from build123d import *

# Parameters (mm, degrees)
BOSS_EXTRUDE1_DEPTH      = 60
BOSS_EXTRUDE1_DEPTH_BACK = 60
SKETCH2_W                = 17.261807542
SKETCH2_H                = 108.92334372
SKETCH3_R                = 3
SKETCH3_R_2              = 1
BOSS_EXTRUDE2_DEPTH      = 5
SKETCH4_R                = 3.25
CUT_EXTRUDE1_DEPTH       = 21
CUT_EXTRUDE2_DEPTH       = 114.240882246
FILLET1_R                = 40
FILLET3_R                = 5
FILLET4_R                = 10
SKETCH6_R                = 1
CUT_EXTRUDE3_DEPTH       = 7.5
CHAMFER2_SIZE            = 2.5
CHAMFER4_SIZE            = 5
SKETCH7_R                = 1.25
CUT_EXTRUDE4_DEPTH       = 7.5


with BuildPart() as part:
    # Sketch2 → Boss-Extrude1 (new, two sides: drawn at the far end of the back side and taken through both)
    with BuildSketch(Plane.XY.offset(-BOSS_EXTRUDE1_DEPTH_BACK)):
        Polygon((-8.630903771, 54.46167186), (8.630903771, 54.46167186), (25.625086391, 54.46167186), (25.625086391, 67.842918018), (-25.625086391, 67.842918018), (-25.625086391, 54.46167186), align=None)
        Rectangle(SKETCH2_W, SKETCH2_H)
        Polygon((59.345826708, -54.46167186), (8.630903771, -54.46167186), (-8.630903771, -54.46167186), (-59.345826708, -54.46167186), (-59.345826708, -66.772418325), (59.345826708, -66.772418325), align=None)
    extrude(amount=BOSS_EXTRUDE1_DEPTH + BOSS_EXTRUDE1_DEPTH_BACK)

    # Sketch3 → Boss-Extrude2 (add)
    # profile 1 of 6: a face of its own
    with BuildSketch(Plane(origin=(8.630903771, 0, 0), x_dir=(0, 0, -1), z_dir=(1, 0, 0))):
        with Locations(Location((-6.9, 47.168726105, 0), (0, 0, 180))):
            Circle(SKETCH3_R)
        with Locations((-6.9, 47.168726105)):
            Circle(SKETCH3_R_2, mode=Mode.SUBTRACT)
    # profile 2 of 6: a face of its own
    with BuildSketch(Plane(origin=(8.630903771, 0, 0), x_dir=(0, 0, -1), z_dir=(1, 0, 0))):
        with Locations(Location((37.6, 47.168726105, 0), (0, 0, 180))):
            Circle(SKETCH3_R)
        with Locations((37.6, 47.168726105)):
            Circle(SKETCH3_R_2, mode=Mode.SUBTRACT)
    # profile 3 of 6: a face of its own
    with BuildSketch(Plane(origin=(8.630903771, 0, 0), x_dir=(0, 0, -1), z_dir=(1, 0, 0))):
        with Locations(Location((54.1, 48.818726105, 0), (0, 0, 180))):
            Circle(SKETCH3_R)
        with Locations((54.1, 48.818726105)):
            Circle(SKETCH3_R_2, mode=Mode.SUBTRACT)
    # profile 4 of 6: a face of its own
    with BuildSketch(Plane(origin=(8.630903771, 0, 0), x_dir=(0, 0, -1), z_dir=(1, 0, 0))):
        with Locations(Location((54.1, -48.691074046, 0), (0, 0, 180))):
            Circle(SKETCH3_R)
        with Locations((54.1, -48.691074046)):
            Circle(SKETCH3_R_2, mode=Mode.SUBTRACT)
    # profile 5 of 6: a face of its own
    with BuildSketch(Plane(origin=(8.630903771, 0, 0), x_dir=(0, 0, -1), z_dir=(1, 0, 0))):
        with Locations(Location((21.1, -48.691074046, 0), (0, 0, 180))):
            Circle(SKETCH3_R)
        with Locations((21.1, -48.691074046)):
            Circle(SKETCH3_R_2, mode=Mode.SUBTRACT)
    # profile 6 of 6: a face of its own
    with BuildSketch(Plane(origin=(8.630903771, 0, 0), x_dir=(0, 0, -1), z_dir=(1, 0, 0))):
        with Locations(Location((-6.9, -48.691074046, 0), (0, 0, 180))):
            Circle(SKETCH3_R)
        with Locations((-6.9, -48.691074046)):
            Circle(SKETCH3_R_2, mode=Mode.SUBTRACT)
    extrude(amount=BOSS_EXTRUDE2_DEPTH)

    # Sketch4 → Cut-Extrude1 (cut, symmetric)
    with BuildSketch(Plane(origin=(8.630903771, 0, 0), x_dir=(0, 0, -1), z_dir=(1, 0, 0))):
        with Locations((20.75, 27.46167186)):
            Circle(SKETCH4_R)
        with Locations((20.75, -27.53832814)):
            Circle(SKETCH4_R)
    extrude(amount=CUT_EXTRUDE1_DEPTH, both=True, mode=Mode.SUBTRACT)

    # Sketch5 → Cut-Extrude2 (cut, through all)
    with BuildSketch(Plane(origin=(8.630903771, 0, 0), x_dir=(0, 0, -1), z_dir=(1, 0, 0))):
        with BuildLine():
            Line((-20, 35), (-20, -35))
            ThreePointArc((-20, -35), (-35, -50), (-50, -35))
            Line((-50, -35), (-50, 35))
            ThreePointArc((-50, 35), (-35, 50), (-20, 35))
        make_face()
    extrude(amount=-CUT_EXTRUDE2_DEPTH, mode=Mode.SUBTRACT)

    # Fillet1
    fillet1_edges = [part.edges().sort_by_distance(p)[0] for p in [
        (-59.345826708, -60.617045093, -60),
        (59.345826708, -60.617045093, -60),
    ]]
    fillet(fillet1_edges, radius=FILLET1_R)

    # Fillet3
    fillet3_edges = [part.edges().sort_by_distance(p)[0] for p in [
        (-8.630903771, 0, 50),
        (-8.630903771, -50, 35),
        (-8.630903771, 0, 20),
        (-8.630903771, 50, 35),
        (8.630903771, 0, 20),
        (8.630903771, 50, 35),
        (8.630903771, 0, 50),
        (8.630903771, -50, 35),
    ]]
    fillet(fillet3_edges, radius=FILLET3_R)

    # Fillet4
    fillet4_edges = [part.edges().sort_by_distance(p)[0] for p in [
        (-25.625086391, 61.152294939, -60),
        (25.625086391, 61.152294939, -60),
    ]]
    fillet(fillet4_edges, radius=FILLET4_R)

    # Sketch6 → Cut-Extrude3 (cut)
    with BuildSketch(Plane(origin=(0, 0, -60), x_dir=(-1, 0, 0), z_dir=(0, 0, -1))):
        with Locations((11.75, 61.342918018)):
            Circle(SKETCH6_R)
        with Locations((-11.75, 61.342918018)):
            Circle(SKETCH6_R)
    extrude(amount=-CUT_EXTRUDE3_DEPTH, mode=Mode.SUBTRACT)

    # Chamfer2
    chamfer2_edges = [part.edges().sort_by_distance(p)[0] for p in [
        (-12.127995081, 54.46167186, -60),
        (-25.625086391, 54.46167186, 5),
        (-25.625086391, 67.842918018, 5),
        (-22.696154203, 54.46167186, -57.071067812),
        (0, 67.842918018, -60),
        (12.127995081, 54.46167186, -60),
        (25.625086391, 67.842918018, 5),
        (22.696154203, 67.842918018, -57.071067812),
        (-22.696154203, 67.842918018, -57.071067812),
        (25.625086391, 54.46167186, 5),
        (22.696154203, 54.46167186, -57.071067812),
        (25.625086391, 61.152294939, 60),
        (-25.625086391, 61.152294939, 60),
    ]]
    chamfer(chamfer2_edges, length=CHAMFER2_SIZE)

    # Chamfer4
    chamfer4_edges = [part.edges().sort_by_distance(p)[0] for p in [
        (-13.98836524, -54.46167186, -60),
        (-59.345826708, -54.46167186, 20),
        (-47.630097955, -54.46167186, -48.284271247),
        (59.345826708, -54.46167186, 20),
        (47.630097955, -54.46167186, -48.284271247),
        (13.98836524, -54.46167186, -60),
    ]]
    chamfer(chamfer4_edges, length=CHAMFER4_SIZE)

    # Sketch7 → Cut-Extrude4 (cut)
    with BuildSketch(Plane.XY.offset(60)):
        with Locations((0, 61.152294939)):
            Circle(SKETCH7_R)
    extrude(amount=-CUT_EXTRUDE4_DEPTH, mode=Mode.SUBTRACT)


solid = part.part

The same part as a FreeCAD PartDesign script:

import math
import FreeCAD as App
import Part
import Sketcher
from FreeCAD import Vector
Q = App.Units.Quantity


def edges_at(feature, points):
    """Names of the edges that pass closest to the given points."""
    edges = feature.Shape.Edges
    near = lambda p: min(range(len(edges)), key=lambda i: edges[i].distToShape(Part.Vertex(*p))[0])
    return sorted({f"Edge{near(p) + 1}" for p in points})

doc = App.newDocument("Part")
body = doc.addObject("PartDesign::Body", "Body")

# Sketch on XY plane
sketch1 = doc.addObject("Sketcher::SketchObject", "Sketch")
body.addObject(sketch1)
sketch1.AttachmentSupport = (doc.XY_Plane, [""])
sketch1.MapMode = "FlatFace"
sketch1.addGeometry(Part.LineSegment(Vector(26, 54, 0), Vector(26, 68, 0)), False)
sketch1.addGeometry(Part.LineSegment(Vector(26, 68, 0), Vector(-26, 68, 0)), False)
sketch1.addGeometry(Part.LineSegment(Vector(-26, 68, 0), Vector(-26, 54, 0)), False)
sketch1.addGeometry(Part.LineSegment(Vector(-26, 54, 0), Vector(-9, 54, 0)), False)
sketch1.addGeometry(Part.LineSegment(Vector(-9, 54, 0), Vector(-9, -54, 0)), False)
sketch1.addGeometry(Part.LineSegment(Vector(-9, -54, 0), Vector(-59, -54, 0)), False)
sketch1.addGeometry(Part.LineSegment(Vector(-59, -54, 0), Vector(-59, -67, 0)), False)
sketch1.addGeometry(Part.LineSegment(Vector(-59, -67, 0), Vector(59, -67, 0)), False)
sketch1.addGeometry(Part.LineSegment(Vector(59, -67, 0), Vector(59, -54, 0)), False)
sketch1.addGeometry(Part.LineSegment(Vector(59, -54, 0), Vector(9, -54, 0)), False)
sketch1.addGeometry(Part.LineSegment(Vector(9, -54, 0), Vector(9, 54, 0)), False)
sketch1.addGeometry(Part.LineSegment(Vector(9, 54, 0), Vector(26, 54, 0)), False)
sketch1.addConstraint(Sketcher.Constraint("Coincident", 0, 2, 1, 1))
sketch1.addConstraint(Sketcher.Constraint("Coincident", 1, 2, 2, 1))
sketch1.addConstraint(Sketcher.Constraint("Coincident", 2, 2, 3, 1))
sketch1.addConstraint(Sketcher.Constraint("Coincident", 3, 2, 4, 1))
sketch1.addConstraint(Sketcher.Constraint("Coincident", 4, 2, 5, 1))
sketch1.addConstraint(Sketcher.Constraint("Coincident", 5, 2, 6, 1))
sketch1.addConstraint(Sketcher.Constraint("Coincident", 6, 2, 7, 1))
sketch1.addConstraint(Sketcher.Constraint("Coincident", 7, 2, 8, 1))
sketch1.addConstraint(Sketcher.Constraint("Coincident", 8, 2, 9, 1))
sketch1.addConstraint(Sketcher.Constraint("Coincident", 9, 2, 10, 1))
sketch1.addConstraint(Sketcher.Constraint("Coincident", 10, 2, 11, 1))
sketch1.addConstraint(Sketcher.Constraint("Coincident", 11, 2, 0, 1))
sketch1.addConstraint(Sketcher.Constraint("Vertical", 0))
sketch1.addConstraint(Sketcher.Constraint("Horizontal", 1))
sketch1.addConstraint(Sketcher.Constraint("Vertical", 2))
sketch1.addConstraint(Sketcher.Constraint("Horizontal", 3))
sketch1.addConstraint(Sketcher.Constraint("Vertical", 4))
sketch1.addConstraint(Sketcher.Constraint("Horizontal", 5))
sketch1.addConstraint(Sketcher.Constraint("Vertical", 6))
sketch1.addConstraint(Sketcher.Constraint("Horizontal", 7))
sketch1.addConstraint(Sketcher.Constraint("Vertical", 8))
sketch1.addConstraint(Sketcher.Constraint("Horizontal", 9))
sketch1.addConstraint(Sketcher.Constraint("Vertical", 10))
sketch1.addConstraint(Sketcher.Constraint("Horizontal", 11))
sketch1.addConstraint(Sketcher.Constraint("Symmetric", 3, 2, 9, 2, -1, 1))
sketch1.addConstraint(Sketcher.Constraint("Symmetric", 5, 2, 8, 2, -2))
sketch1.addConstraint(Sketcher.Constraint("Symmetric", 2, 2, 11, 2, -2))
sketch1.addConstraint(Sketcher.Constraint("DistanceX", 1, 2, 1, 1, Q("51.250173 mm")))
sketch1.addConstraint(Sketcher.Constraint("DistanceX", 3, 1, 3, 2, Q("16.994183 mm")))
sketch1.addConstraint(Sketcher.Constraint("DistanceX", 5, 2, 5, 1, Q("50.714923 mm")))
sketch1.addConstraint(Sketcher.Constraint("DistanceY", 0, 1, 0, 2, Q("13.381246 mm")))
sketch1.addConstraint(Sketcher.Constraint("DistanceY", 4, 2, 4, 1, Q("108.923344 mm")))
sketch1.addConstraint(Sketcher.Constraint("DistanceY", 6, 2, 6, 1, Q("12.310746 mm")))
pad1 = doc.addObject("PartDesign::Pad", "Pad")
body.addObject(pad1)
pad1.Profile = sketch1
pad1.Type = "TwoLengths"
pad1.Length = 60
pad1.Length2 = 60

# Sketch on YZ plane
sketch2 = doc.addObject("Sketcher::SketchObject", "Sketch001")
body.addObject(sketch2)
sketch2.AttachmentSupport = (doc.YZ_Plane, [""])
sketch2.MapMode = "FlatFace"
sketch2.AttachmentOffset = App.Placement(Vector(0, 0, 8.630904), App.Rotation())
sketch2.addGeometry(Part.Circle(Vector(47.2, 6.9, 0), Vector(0, 0, 1), 3), False)
sketch2.addGeometry(Part.Circle(Vector(47.2, 6.9, 0), Vector(0, 0, 1), 1), False)
sketch2.addGeometry(Part.Circle(Vector(47.2, -37.6, 0), Vector(0, 0, 1), 3), False)
sketch2.addGeometry(Part.Circle(Vector(47.2, -37.6, 0), Vector(0, 0, 1), 1), False)
sketch2.addGeometry(Part.Circle(Vector(48.8, -54.1, 0), Vector(0, 0, 1), 3), False)
sketch2.addGeometry(Part.Circle(Vector(48.8, -54.1, 0), Vector(0, 0, 1), 1), False)
sketch2.addGeometry(Part.Circle(Vector(-48.7, -54.1, 0), Vector(0, 0, 1), 3), False)
sketch2.addGeometry(Part.Circle(Vector(-48.7, -54.1, 0), Vector(0, 0, 1), 1), False)
sketch2.addGeometry(Part.Circle(Vector(-48.7, -21.1, 0), Vector(0, 0, 1), 3), False)
sketch2.addGeometry(Part.Circle(Vector(-48.7, -21.1, 0), Vector(0, 0, 1), 1), False)
sketch2.addGeometry(Part.Circle(Vector(-48.7, 6.9, 0), Vector(0, 0, 1), 3), False)
sketch2.addGeometry(Part.Circle(Vector(-48.7, 6.9, 0), Vector(0, 0, 1), 1), False)
sketch2.addConstraint(Sketcher.Constraint("Coincident", 1, 3, 0, 3))
sketch2.addConstraint(Sketcher.Constraint("Coincident", 3, 3, 2, 3))
sketch2.addConstraint(Sketcher.Constraint("Coincident", 5, 3, 4, 3))
sketch2.addConstraint(Sketcher.Constraint("Coincident", 7, 3, 6, 3))
sketch2.addConstraint(Sketcher.Constraint("Coincident", 9, 3, 8, 3))
sketch2.addConstraint(Sketcher.Constraint("Coincident", 11, 3, 10, 3))
sketch2.addConstraint(Sketcher.Constraint("Equal", 0, 2))
sketch2.addConstraint(Sketcher.Constraint("Equal", 1, 3))
sketch2.addConstraint(Sketcher.Constraint("Equal", 2, 4))
sketch2.addConstraint(Sketcher.Constraint("Equal", 3, 5))
sketch2.addConstraint(Sketcher.Constraint("Equal", 4, 6))
sketch2.addConstraint(Sketcher.Constraint("Equal", 5, 7))
sketch2.addConstraint(Sketcher.Constraint("Equal", 6, 8))
sketch2.addConstraint(Sketcher.Constraint("Equal", 7, 9))
sketch2.addConstraint(Sketcher.Constraint("Equal", 8, 10))
sketch2.addConstraint(Sketcher.Constraint("Equal", 9, 11))
sketch2.addConstraint(Sketcher.Constraint("Horizontal", 5, 3, 6, 3))
sketch2.addConstraint(Sketcher.Constraint("Horizontal", 1, 3, 10, 3))
sketch2.addConstraint(Sketcher.Constraint("Vertical", 1, 3, 2, 3))
sketch2.addConstraint(Sketcher.Constraint("Vertical", 7, 3, 8, 3))
sketch2.addConstraint(Sketcher.Constraint("Vertical", 9, 3, 10, 3))
sketch2.addConstraint(Sketcher.Constraint("Diameter", 0, Q("6 mm")))
sketch2.addConstraint(Sketcher.Constraint("Diameter", 1, Q("2 mm")))
sketch2.addConstraint(Sketcher.Constraint("DistanceY", 4, 3, 0, 3, Q("61 mm")))
sketch2.addConstraint(Sketcher.Constraint("DistanceY", 6, 3, 8, 3, Q("33 mm")))
sketch2.addConstraint(Sketcher.Constraint("DistanceY", -1, 1, 0, 3, Q("6.9 mm")))
sketch2.addConstraint(Sketcher.Constraint("DistanceY", 2, 3, -1, 1, Q("37.6 mm")))
sketch2.addConstraint(Sketcher.Constraint("DistanceX", 2, 3, 4, 3, Q("1.65 mm")))
sketch2.addConstraint(Sketcher.Constraint("DistanceX", 6, 3, 2, 3, Q("95.8598 mm")))
sketch2.addConstraint(Sketcher.Constraint("DistanceX", -1, 1, 0, 3, Q("47.168726 mm")))
pad2 = doc.addObject("PartDesign::Pad", "Pad001")
body.addObject(pad2)
pad2.Profile = sketch2
pad2.Length = 5

# Sketch on YZ plane
sketch3 = doc.addObject("Sketcher::SketchObject", "Sketch002")
body.addObject(sketch3)
sketch3.AttachmentSupport = (doc.YZ_Plane, [""])
sketch3.MapMode = "FlatFace"
sketch3.AttachmentOffset = App.Placement(Vector(0, 0, 8.630904), App.Rotation())
sketch3.addGeometry(Part.Circle(Vector(27.5, -20.8, 0), Vector(0, 0, 1), 3.2), False)
sketch3.addGeometry(Part.Circle(Vector(-27.5, -20.8, 0), Vector(0, 0, 1), 3.2), False)
sketch3.addConstraint(Sketcher.Constraint("Equal", 0, 1))
sketch3.addConstraint(Sketcher.Constraint("Horizontal", 0, 3, 1, 3))
sketch3.addConstraint(Sketcher.Constraint("Diameter", 0, Q("6.5 mm")))
sketch3.addConstraint(Sketcher.Constraint("DistanceX", 1, 3, 0, 3, Q("55 mm")))
sketch3.addConstraint(Sketcher.Constraint("DistanceY", 0, 3, -1, 1, Q("20.75 mm")))
sketch3.addConstraint(Sketcher.Constraint("DistanceX", -1, 1, 0, 3, Q("27.461672 mm")))
pocket1 = doc.addObject("PartDesign::Pocket", "Pocket")
body.addObject(pocket1)
pocket1.Profile = sketch3
pocket1.Length = 42
pocket1.Midplane = True

# Sketch on YZ plane
sketch4 = doc.addObject("Sketcher::SketchObject", "Sketch003")
body.addObject(sketch4)
sketch4.AttachmentSupport = (doc.YZ_Plane, [""])
sketch4.MapMode = "FlatFace"
sketch4.AttachmentOffset = App.Placement(Vector(0, 0, 8.630904), App.Rotation())
sketch4.addGeometry(Part.LineSegment(Vector(-35, 20, 0), Vector(35, 20, 0)), False)
sketch4.addGeometry(Part.ArcOfCircle(Part.Circle(Vector(35, 35, 0), Vector(0, 0, 1), 15), math.radians(-90), math.radians(90)), False)
sketch4.addGeometry(Part.LineSegment(Vector(35, 50, 0), Vector(-35, 50, 0)), False)
sketch4.addGeometry(Part.ArcOfCircle(Part.Circle(Vector(-35, 35, 0), Vector(0, 0, 1), 15), math.radians(90), math.radians(270)), False)
sketch4.addConstraint(Sketcher.Constraint("Tangent", 0, 2, 1, 1))
sketch4.addConstraint(Sketcher.Constraint("Tangent", 1, 2, 2, 1))
sketch4.addConstraint(Sketcher.Constraint("Tangent", 2, 2, 3, 1))
sketch4.addConstraint(Sketcher.Constraint("Tangent", 3, 2, 0, 1))
sketch4.addConstraint(Sketcher.Constraint("Horizontal", 0))
sketch4.addConstraint(Sketcher.Constraint("Horizontal", 2))
sketch4.addConstraint(Sketcher.Constraint("Radius", 1, Q("15 mm")))
sketch4.addConstraint(Sketcher.Constraint("DistanceX", 0, 1, 0, 2, Q("70 mm")))
sketch4.addConstraint(Sketcher.Constraint("DistanceX", -1, 1, 1, 3, Q("35 mm")))
sketch4.addConstraint(Sketcher.Constraint("DistanceY", -1, 1, 1, 3, Q("35 mm")))
pocket2 = doc.addObject("PartDesign::Pocket", "Pocket001")
body.addObject(pocket2)
pocket2.Profile = sketch4
pocket2.Type = "ThroughAll"
doc.recompute()

fillet = doc.addObject("PartDesign::Fillet", "Fillet")
body.addObject(fillet)
fillet.Base = (pocket2, edges_at(pocket2, [(-59.346, -60.617, -60), (59.346, -60.617, -60)]))
fillet.Radius = 40
doc.recompute()

fillet2 = doc.addObject("PartDesign::Fillet", "Fillet001")
body.addObject(fillet2)
fillet2.Base = (fillet, edges_at(fillet, [
    (-8.631, 0, 50),
    (-8.631, -50, 35),
    (-8.631, 0, 20),
    (-8.631, 50, 35),
    (8.631, 0, 20),
    (8.631, 50, 35),
    (8.631, 0, 50),
    (8.631, -50, 35),
]))
fillet2.Radius = 5
doc.recompute()

fillet3 = doc.addObject("PartDesign::Fillet", "Fillet002")
body.addObject(fillet3)
fillet3.Base = (fillet2, edges_at(fillet2, [(-25.625, 61.152, -60), (25.625, 61.152, -60)]))
fillet3.Radius = 10

# Sketch on XY plane
sketch5 = doc.addObject("Sketcher::SketchObject", "Sketch004")
body.addObject(sketch5)
sketch5.AttachmentSupport = (doc.XY_Plane, [""])
sketch5.MapMode = "FlatFace"
sketch5.AttachmentOffset = App.Placement(Vector(0, 0, -60), App.Rotation())
sketch5.addGeometry(Part.Circle(Vector(-11.8, 61.3, 0), Vector(0, 0, 1), 1), False)
sketch5.addGeometry(Part.Circle(Vector(11.8, 61.3, 0), Vector(0, 0, 1), 1), False)
sketch5.addConstraint(Sketcher.Constraint("Equal", 0, 1))
sketch5.addConstraint(Sketcher.Constraint("Symmetric", 0, 3, 1, 3, -2))
sketch5.addConstraint(Sketcher.Constraint("Diameter", 0, Q("2 mm")))
sketch5.addConstraint(Sketcher.Constraint("DistanceX", 0, 3, 1, 3, Q("23.5 mm")))
sketch5.addConstraint(Sketcher.Constraint("DistanceY", -1, 1, 0, 3, Q("61.342918 mm")))
pocket3 = doc.addObject("PartDesign::Pocket", "Pocket002")
body.addObject(pocket3)
pocket3.Profile = sketch5
pocket3.Length = 7.5
pocket3.Reversed = True
doc.recompute()

chamfer = doc.addObject("PartDesign::Chamfer", "Chamfer")
body.addObject(chamfer)
chamfer.Base = (pocket3, edges_at(pocket3, [
    (-12.128, 54.462, -60),
    (-25.625, 54.462, 5),
    (-25.625, 67.843, 5),
    (-22.696, 54.462, -57.071),
    (0, 67.843, -60),
    (12.128, 54.462, -60),
    (25.625, 67.843, 5),
    (22.696, 67.843, -57.071),
    (-22.696, 67.843, -57.071),
    (25.625, 54.462, 5),
    (22.696, 54.462, -57.071),
    (25.625, 61.152, 60),
    (-25.625, 61.152, 60),
]))
chamfer.Size = 2.5
doc.recompute()

chamfer2 = doc.addObject("PartDesign::Chamfer", "Chamfer001")
body.addObject(chamfer2)
chamfer2.Base = (chamfer, edges_at(chamfer, [
    (-13.988, -54.462, -60),
    (-59.346, -54.462, 20),
    (-47.63, -54.462, -48.284),
    (59.346, -54.462, 20),
    (47.63, -54.462, -48.284),
    (13.988, -54.462, -60),
]))
chamfer2.Size = 5

# Sketch on XY plane
sketch6 = doc.addObject("Sketcher::SketchObject", "Sketch005")
body.addObject(sketch6)
sketch6.AttachmentSupport = (doc.XY_Plane, [""])
sketch6.MapMode = "FlatFace"
sketch6.AttachmentOffset = App.Placement(Vector(0, 0, 60), App.Rotation())
sketch6.addGeometry(Part.Circle(Vector(0, 61.2, 0), Vector(0, 0, 1), 1.2), False)
sketch6.addConstraint(Sketcher.Constraint("PointOnObject", 0, 3, -2))
sketch6.addConstraint(Sketcher.Constraint("Diameter", 0, Q("2.5 mm")))
sketch6.addConstraint(Sketcher.Constraint("DistanceY", -1, 1, 0, 3, Q("61.152295 mm")))
pocket4 = doc.addObject("PartDesign::Pocket", "Pocket003")
body.addObject(pocket4)
pocket4.Profile = sketch6
pocket4.Length = 7.5

doc.recompute()
